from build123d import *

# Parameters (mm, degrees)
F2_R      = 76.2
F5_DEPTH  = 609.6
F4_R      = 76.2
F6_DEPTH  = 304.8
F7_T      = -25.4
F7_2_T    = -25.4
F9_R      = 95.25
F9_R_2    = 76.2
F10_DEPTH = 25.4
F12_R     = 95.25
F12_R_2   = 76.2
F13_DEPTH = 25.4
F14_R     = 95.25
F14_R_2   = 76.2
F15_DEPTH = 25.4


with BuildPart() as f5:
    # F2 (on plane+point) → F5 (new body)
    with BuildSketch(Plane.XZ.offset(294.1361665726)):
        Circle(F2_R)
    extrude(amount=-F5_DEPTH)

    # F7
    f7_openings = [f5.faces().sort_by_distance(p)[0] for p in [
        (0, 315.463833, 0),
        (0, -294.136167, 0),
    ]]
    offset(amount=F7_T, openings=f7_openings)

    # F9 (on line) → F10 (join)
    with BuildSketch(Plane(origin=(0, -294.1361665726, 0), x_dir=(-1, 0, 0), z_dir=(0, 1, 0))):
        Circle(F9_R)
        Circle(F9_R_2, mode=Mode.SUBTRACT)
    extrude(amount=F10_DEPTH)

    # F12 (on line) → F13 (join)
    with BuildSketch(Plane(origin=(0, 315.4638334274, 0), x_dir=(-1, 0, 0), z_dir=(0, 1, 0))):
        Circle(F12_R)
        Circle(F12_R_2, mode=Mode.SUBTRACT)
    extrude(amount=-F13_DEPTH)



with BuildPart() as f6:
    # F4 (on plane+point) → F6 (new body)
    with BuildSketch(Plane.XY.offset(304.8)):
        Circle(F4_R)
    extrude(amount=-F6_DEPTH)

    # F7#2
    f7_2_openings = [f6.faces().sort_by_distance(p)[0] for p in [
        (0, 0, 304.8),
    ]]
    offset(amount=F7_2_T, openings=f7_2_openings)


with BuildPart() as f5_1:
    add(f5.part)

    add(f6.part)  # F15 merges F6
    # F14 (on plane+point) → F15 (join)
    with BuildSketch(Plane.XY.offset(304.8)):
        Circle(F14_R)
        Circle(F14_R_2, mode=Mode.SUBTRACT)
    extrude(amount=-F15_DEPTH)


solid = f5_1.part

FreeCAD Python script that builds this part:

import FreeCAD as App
import Part
import Sketcher

V = App.Vector
Q = App.Units.Quantity


def faces_at(feature, points):
    """Names of the faces that lie closest to the given points."""
    faces = feature.Shape.Faces
    near = lambda p: min(range(len(faces)), key=lambda i: faces[i].distToShape(Part.Vertex(*p))[0])
    return sorted({f"Face{near(p) + 1}" for p in points})

doc = App.newDocument("Part")
body = doc.addObject("PartDesign::Body", "Body")

# Sketch on XZ plane
sketch1 = doc.addObject("Sketcher::SketchObject", "Sketch")
body.addObject(sketch1)
sketch1.AttachmentSupport = (doc.XZ_Plane, [""])
sketch1.MapMode = "FlatFace"
sketch1.AttachmentOffset = App.Placement(V(0, 0, 294.136167), App.Rotation())
sketch1.addGeometry(Part.Circle(V(0, 0, 0), V(0, 0, 1), 76), False)
sketch1.addConstraint([
    Sketcher.Constraint("Coincident", 0, 3, -1, 1),
    Sketcher.Constraint("Diameter", 0, Q("6 in")),
])
pad1 = doc.addObject("PartDesign::Pad", "Pad")
body.addObject(pad1)
pad1.Profile = sketch1
pad1.Length = Q("24 in")
pad1.Reversed = True
doc.recompute()

thickness = doc.addObject("PartDesign::Thickness", "Thickness")
body.addObject(thickness)
thickness.Base = (pad1, faces_at(pad1, [(0, 315.464, 0), (0, -294.136, 0)]))
thickness.Value = Q("1 in")
thickness.Reversed = True
thickness.Join = "Arc"

# Sketch on XZ plane
sketch2 = doc.addObject("Sketcher::SketchObject", "Sketch001")
body.addObject(sketch2)
sketch2.AttachmentSupport = (doc.XZ_Plane, [""])
sketch2.MapMode = "FlatFace"
sketch2.AttachmentOffset = App.Placement(V(0, 0, 294.136167), App.Rotation())
sketch2.addGeometry([
    Part.Circle(V(0, 0, 0), V(0, 0, 1), 95),
    Part.Circle(V(0, 0, 0), V(0, 0, 1), 76),
], False)
sketch2.addConstraint([
    Sketcher.Constraint("Coincident", 0, 3, -1, 1),
    Sketcher.Constraint("Coincident", 1, 3, -1, 1),
    Sketcher.Constraint("Diameter", 1, Q("6 in")),
    Sketcher.Constraint("Diameter", 0, Q("7.5 in")),
])
pad2 = doc.addObject("PartDesign::Pad", "Pad001")
body.addObject(pad2)
pad2.Profile = sketch2
pad2.Length = Q("1 in")
pad2.Reversed = True

# Sketch on XZ plane
sketch3 = doc.addObject("Sketcher::SketchObject", "Sketch002")
body.addObject(sketch3)
sketch3.AttachmentSupport = (doc.XZ_Plane, [""])
sketch3.MapMode = "FlatFace"
sketch3.AttachmentOffset = App.Placement(V(0, 0, -315.463833), App.Rotation())
sketch3.addGeometry([
    Part.Circle(V(0, 0, 0), V(0, 0, 1), 95),
    Part.Circle(V(0, 0, 0), V(0, 0, 1), 76),
], False)
sketch3.addConstraint([
    Sketcher.Constraint("Coincident", 0, 3, -1, 1),
    Sketcher.Constraint("Coincident", 1, 3, -1, 1),
    Sketcher.Constraint("Diameter", 1, Q("6 in")),
    Sketcher.Constraint("Diameter", 0, Q("7.5 in")),
])
pad3 = doc.addObject("PartDesign::Pad", "Pad002")
body.addObject(pad3)
pad3.Profile = sketch3
pad3.Length = Q("1 in")
body2 = doc.addObject("PartDesign::Body", "Body001")

# Sketch on XY plane
sketch4 = doc.addObject("Sketcher::SketchObject", "Sketch003")
body2.addObject(sketch4)
sketch4.AttachmentSupport = (doc.getObject("XY_Plane001"), [""])
sketch4.MapMode = "FlatFace"
sketch4.AttachmentOffset = App.Placement(V(0, 0, 12 * 25.4), App.Rotation())
sketch4.addGeometry(Part.Circle(V(0, 0, 0), V(0, 0, 1), 76), False)
sketch4.addConstraint([
    Sketcher.Constraint("Coincident", 0, 3, -1, 1),
    Sketcher.Constraint("Diameter", 0, Q("6 in")),
])
pad4 = doc.addObject("PartDesign::Pad", "Pad003")
body2.addObject(pad4)
pad4.Profile = sketch4
pad4.Length = Q("12 in")
pad4.Reversed = True
doc.recompute()

thickness2 = doc.addObject("PartDesign::Thickness", "Thickness001")
body2.addObject(thickness2)
thickness2.Base = (pad4, faces_at(pad4, [(0, 0, 304.8)]))
thickness2.Value = Q("1 in")
thickness2.Reversed = True
thickness2.Join = "Arc"
doc.recompute()

boolean = doc.addObject("PartDesign::Boolean", "Boolean")
body.addObject(boolean)
boolean.Type = "Fuse"
boolean.addObjects([body2])

# Sketch on XY plane
sketch5 = doc.addObject("Sketcher::SketchObject", "Sketch004")
body.addObject(sketch5)
sketch5.AttachmentSupport = (doc.XY_Plane, [""])
sketch5.MapMode = "FlatFace"
sketch5.AttachmentOffset = App.Placement(V(0, 0, 12 * 25.4), App.Rotation())
sketch5.addGeometry([
    Part.Circle(V(0, 0, 0), V(0, 0, 1), 95),
    Part.Circle(V(0, 0, 0), V(0, 0, 1), 76),
], False)
sketch5.addConstraint([
    Sketcher.Constraint("Coincident", 0, 3, -1, 1),
    Sketcher.Constraint("Coincident", 1, 3, -1, 1),
    Sketcher.Constraint("Diameter", 1, Q("6 in")),
    Sketcher.Constraint("Diameter", 0, Q("7.5 in")),
])
pad5 = doc.addObject("PartDesign::Pad", "Pad004")
body.addObject(pad5)
pad5.Profile = sketch5
pad5.Length = Q("1 in")
pad5.Reversed = True

doc.recompute()
